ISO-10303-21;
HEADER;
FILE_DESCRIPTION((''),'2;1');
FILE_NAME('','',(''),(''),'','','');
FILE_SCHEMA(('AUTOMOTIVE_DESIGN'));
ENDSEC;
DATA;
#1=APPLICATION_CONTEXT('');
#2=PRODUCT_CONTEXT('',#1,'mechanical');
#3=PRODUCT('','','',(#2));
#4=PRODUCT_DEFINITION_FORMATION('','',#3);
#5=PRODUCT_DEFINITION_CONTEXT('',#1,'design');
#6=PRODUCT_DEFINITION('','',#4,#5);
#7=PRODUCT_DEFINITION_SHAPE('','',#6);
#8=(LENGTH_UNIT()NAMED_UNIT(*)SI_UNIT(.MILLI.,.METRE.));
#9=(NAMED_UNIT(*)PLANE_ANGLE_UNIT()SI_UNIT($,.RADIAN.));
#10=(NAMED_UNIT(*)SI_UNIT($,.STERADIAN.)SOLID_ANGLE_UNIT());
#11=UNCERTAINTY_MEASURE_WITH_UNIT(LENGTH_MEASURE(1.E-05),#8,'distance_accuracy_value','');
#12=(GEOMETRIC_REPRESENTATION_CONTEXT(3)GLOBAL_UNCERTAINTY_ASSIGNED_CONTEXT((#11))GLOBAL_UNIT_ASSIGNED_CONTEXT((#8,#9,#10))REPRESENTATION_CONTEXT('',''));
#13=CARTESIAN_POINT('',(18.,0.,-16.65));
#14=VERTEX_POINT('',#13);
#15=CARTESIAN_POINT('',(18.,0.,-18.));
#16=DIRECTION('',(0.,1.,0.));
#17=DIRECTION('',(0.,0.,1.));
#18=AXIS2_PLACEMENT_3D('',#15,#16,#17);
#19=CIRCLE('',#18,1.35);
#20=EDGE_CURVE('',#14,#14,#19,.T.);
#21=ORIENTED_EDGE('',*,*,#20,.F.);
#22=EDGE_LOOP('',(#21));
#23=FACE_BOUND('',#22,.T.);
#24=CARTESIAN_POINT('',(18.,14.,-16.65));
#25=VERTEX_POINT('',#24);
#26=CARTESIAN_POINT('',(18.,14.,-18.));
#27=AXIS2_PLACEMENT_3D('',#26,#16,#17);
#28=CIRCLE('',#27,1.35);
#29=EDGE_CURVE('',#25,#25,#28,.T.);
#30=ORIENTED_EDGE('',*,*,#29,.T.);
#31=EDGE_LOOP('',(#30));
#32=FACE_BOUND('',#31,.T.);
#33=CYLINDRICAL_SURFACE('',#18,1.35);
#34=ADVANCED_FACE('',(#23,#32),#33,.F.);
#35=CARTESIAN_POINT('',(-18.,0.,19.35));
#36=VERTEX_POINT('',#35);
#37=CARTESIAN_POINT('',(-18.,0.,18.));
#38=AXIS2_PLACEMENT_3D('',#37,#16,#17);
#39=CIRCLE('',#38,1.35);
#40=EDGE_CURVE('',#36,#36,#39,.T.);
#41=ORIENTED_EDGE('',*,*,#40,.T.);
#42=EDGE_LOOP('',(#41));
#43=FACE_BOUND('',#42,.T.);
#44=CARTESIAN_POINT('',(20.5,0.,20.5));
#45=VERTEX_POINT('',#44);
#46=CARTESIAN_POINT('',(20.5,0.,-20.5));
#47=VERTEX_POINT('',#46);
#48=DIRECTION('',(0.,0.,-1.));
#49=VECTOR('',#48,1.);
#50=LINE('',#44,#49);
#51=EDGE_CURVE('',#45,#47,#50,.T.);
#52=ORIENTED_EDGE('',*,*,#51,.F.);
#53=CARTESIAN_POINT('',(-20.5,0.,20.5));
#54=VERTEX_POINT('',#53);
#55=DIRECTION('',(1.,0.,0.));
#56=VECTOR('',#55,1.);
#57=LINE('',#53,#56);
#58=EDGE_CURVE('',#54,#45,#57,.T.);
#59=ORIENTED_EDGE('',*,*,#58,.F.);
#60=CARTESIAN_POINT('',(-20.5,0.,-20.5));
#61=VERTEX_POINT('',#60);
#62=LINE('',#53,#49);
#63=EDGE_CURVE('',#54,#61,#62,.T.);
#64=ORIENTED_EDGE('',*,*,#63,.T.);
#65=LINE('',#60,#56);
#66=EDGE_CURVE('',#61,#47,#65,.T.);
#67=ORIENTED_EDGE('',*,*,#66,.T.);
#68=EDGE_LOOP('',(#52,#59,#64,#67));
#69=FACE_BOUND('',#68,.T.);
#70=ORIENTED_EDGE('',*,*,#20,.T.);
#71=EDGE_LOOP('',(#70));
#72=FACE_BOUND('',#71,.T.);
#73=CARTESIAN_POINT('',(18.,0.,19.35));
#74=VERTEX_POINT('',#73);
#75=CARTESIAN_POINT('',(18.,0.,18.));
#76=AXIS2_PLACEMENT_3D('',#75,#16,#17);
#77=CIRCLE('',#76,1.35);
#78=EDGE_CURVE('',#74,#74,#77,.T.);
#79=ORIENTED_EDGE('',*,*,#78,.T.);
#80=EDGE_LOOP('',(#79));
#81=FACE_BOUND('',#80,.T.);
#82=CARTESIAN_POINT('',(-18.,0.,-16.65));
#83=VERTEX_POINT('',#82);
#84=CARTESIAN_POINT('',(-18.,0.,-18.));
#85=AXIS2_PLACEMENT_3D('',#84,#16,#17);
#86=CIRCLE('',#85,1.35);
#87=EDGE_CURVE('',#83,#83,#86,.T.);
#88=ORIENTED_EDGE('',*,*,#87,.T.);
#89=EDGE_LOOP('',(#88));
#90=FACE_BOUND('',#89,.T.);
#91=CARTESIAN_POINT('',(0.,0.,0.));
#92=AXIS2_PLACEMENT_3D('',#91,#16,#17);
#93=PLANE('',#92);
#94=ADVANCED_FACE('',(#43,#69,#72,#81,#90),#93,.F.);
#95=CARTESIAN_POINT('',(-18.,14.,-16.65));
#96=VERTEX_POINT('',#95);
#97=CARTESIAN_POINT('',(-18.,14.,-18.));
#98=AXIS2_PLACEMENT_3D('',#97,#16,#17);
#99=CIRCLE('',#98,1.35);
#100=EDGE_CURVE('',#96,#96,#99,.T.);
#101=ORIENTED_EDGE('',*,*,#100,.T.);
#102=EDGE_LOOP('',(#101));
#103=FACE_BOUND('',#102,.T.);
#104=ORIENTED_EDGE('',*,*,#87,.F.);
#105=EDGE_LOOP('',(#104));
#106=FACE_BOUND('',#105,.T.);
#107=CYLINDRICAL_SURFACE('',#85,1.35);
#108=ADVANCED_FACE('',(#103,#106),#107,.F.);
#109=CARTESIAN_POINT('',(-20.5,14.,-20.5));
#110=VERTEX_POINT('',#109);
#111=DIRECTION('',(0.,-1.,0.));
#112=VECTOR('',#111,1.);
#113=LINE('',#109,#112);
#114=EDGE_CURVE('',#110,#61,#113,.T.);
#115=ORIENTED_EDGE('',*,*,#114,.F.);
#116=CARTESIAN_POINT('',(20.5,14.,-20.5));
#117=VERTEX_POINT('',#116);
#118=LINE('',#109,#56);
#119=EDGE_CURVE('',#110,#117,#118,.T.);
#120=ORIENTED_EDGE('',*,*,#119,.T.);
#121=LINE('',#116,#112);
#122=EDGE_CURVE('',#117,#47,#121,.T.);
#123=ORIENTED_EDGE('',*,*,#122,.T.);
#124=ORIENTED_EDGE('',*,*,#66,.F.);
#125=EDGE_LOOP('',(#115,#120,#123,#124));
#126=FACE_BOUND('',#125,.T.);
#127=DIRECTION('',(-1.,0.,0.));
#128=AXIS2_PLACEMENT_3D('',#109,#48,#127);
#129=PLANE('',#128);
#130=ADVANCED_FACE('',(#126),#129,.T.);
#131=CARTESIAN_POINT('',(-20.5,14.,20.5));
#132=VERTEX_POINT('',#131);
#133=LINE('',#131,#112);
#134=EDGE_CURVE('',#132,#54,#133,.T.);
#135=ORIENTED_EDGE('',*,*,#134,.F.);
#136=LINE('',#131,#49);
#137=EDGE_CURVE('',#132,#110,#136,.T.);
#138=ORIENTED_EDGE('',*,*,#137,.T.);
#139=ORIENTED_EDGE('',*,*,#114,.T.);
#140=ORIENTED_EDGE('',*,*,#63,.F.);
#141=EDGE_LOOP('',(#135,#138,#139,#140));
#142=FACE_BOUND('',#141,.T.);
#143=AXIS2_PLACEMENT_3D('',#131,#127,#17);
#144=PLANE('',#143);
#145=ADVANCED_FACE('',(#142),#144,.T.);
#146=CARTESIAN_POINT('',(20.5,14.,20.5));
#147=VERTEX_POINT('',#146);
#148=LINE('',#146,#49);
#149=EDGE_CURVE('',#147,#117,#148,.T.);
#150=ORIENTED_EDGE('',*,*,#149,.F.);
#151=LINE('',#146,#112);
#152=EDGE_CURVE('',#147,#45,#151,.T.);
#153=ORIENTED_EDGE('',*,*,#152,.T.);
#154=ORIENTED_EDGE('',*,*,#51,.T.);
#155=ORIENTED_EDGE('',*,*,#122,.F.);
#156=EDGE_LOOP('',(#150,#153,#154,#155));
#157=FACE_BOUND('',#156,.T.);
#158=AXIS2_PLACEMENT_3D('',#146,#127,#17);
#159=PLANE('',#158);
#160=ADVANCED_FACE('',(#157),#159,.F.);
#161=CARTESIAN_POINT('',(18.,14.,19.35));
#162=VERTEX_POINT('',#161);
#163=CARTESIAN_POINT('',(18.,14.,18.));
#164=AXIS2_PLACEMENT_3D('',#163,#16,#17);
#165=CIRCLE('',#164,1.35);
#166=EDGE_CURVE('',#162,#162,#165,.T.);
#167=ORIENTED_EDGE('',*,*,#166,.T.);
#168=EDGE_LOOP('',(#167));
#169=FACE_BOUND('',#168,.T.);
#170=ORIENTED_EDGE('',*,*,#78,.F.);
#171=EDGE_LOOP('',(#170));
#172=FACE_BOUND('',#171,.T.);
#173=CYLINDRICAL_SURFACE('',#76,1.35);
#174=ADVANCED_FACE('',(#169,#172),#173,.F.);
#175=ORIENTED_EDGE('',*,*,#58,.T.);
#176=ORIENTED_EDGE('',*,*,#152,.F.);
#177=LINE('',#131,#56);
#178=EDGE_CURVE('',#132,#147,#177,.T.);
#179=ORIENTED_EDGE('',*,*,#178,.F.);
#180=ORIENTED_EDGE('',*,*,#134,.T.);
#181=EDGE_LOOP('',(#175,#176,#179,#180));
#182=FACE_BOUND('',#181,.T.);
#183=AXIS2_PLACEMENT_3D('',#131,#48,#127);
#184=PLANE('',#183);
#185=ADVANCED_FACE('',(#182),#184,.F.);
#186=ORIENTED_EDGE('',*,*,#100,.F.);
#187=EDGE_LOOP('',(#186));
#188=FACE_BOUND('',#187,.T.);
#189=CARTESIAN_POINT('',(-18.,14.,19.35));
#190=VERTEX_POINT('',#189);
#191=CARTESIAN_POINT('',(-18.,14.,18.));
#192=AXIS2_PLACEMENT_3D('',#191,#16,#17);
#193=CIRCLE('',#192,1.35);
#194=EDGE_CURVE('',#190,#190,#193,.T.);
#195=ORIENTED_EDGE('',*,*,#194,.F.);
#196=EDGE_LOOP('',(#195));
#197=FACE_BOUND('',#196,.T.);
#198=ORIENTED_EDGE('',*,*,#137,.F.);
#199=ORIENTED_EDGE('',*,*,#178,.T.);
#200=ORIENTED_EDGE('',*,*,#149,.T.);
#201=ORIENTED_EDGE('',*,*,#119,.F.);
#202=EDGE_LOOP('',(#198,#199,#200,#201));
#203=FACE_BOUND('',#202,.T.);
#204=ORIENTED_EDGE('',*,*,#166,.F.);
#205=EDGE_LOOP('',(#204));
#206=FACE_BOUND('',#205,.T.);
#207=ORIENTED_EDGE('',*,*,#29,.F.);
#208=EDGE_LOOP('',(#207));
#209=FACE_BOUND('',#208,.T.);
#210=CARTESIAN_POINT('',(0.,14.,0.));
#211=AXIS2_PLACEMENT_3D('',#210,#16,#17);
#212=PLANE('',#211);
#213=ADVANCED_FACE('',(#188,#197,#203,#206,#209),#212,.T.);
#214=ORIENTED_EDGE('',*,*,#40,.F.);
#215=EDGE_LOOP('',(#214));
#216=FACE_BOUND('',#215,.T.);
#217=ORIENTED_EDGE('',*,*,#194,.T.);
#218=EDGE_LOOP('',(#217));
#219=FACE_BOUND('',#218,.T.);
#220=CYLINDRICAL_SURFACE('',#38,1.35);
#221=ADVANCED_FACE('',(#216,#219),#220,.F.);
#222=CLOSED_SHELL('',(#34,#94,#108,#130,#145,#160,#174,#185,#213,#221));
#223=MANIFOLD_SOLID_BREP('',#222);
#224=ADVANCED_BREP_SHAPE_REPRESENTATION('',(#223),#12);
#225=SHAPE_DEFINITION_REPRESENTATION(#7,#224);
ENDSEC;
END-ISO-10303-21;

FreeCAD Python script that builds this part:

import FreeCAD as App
import Part
import Sketcher
from FreeCAD import Vector

doc = App.newDocument("Part")
body = doc.addObject("PartDesign::Body", "Body")

sketch1 = body.newObject("Sketcher::SketchObject", "Sketch")
sketch1.AttachmentSupport = (doc.getObject("XZ_Plane"), [""])
sketch1.MapMode = "FlatFace"
sketch1.addGeometry([
    Part.LineSegment(Vector(-20, -20, 0), Vector(-20, 20, 0)),
    Part.LineSegment(Vector(-20, 20, 0), Vector(20, 20, 0)),
    Part.LineSegment(Vector(20, 20, 0), Vector(20, -20, 0)),
    Part.LineSegment(Vector(20, -20, 0), Vector(-20, -20, 0)),
], False)
sketch1.addConstraint([
    Sketcher.Constraint("Coincident", 0, 2, 1, 1),
    Sketcher.Constraint("Coincident", 1, 2, 2, 1),
    Sketcher.Constraint("Coincident", 2, 2, 3, 1),
    Sketcher.Constraint("Coincident", 3, 2, 0, 1),
    Sketcher.Constraint("Vertical", 0),
    Sketcher.Constraint("Horizontal", 1),
    Sketcher.Constraint("Vertical", 2),
    Sketcher.Constraint("Horizontal", 3),
    Sketcher.Constraint("Symmetric", 0, 2, 2, 2, -1, 1),
    Sketcher.Constraint("Equal", 3, 0),
    Sketcher.Constraint("DistanceX", 1, 1, 1, 2, 41.0),
])
pad1 = body.newObject("PartDesign::Pad", "Pad")
pad1.Profile = sketch1
pad1.Length = 14
pad1.Reversed = True

sketch2 = body.newObject("Sketcher::SketchObject", "Sketch001")
sketch2.AttachmentSupport = (doc.getObject("XZ_Plane"), [""])
sketch2.MapMode = "FlatFace"
sketch2.AttachmentOffset = App.Placement(Vector(0, 0, -14), App.Rotation())
sketch2.addGeometry([
    Part.Circle(Vector(-18, -18, 0), Vector(0, 0, 1), 1.4),
    Part.Circle(Vector(18, -18, 0), Vector(0, 0, 1), 1.4),
    Part.Circle(Vector(18, 18, 0), Vector(0, 0, 1), 1.4),
    Part.Circle(Vector(-18, 18, 0), Vector(0, 0, 1), 1.4),
], False)
sketch2.addConstraint([
    Sketcher.Constraint("Equal", 0, 1),
    Sketcher.Constraint("Equal", 1, 2),
    Sketcher.Constraint("Equal", 2, 3),
    Sketcher.Constraint("Symmetric", 0, 3, 2, 3, -1, 1),
    Sketcher.Constraint("Symmetric", 1, 3, 3, 3, -1, 1),
    Sketcher.Constraint("Symmetric", 0, 3, 1, 3, -2),
    Sketcher.Constraint("Diameter", 0, 2.7),
    Sketcher.Constraint("DistanceX", 0, 3, -1, 1, 18.0),
    Sketcher.Constraint("DistanceY", 0, 3, -1, 1, 18.0),
])
pocket1 = body.newObject("PartDesign::Pocket", "Pocket")
pocket1.Profile = sketch2
pocket1.Length = 14
pocket1.Reversed = True

doc.recompute()
